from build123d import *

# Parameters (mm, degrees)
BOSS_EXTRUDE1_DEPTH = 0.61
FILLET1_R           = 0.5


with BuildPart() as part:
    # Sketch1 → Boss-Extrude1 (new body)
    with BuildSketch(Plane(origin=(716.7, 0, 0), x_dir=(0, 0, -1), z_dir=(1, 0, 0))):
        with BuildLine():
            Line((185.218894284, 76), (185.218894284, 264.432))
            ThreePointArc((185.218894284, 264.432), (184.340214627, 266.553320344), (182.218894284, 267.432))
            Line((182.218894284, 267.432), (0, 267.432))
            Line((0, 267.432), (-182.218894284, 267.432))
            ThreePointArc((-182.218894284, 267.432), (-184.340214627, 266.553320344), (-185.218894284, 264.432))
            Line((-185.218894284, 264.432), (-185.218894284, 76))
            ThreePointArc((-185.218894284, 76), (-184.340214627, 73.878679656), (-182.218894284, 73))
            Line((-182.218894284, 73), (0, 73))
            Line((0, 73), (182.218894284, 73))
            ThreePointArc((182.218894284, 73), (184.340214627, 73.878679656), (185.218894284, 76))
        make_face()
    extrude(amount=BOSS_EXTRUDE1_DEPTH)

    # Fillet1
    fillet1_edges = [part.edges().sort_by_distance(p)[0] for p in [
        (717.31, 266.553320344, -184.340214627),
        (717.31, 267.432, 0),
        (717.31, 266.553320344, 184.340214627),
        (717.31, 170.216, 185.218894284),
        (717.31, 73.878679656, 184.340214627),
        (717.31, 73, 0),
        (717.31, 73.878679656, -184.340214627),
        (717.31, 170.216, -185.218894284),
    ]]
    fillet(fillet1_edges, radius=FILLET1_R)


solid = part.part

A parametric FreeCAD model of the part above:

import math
import FreeCAD as App
import Part
import Sketcher

V = App.Vector
Q = App.Units.Quantity


def edges_at(feature, points):
    """Names of the edges that pass closest to the given points."""
    edges = feature.Shape.Edges
    near = lambda p: min(range(len(edges)), key=lambda i: edges[i].distToShape(Part.Vertex(*p))[0])
    return sorted({f"Edge{near(p) + 1}" for p in points})

doc = App.newDocument("Part")
body = doc.addObject("PartDesign::Body", "Body")

# Sketch on YZ plane
sketch1 = body.newObject("Sketcher::SketchObject", "Sketch")
sketch1.AttachmentSupport = (doc.getObject("YZ_Plane"), [""])
sketch1.MapMode = "FlatFace"
sketch1.AttachmentOffset = App.Placement(V(0, 0, 716.7), App.Rotation())
sketch1.addGeometry([
    Part.LineSegment(V(76, -185.218894, 0), V(264.432, -185.218894, 0)),  # 0
    Part.ArcOfCircle(Part.Circle(V(264.432, -182.218894, 0), V(0, 0, 1), 3), math.radians(-90), math.radians(0)),  # 1
    Part.LineSegment(V(267.432, -182.218894, 0), V(267.432, 182.218894, 0)),  # 2
    Part.ArcOfCircle(Part.Circle(V(264.432, 182.218894, 0), V(0, 0, 1), 3), math.radians(0), math.radians(90)),  # 3
    Part.LineSegment(V(264.432, 185.218894, 0), V(76, 185.218894, 0)),  # 4
    Part.ArcOfCircle(Part.Circle(V(76, 182.218894, 0), V(0, 0, 1), 3), math.radians(90), math.radians(180)),  # 5
    Part.LineSegment(V(73, 182.218894, 0), V(73, -182.218894, 0)),  # 6
    Part.ArcOfCircle(Part.Circle(V(76, -182.218894, 0), V(0, 0, 1), 3), math.radians(180), math.radians(270)),  # 7
], False)
sketch1.addConstraint([
    Sketcher.Constraint("Tangent", 0, 2, 1, 1),
    Sketcher.Constraint("Tangent", 1, 2, 2, 1),
    Sketcher.Constraint("Tangent", 2, 2, 3, 1),
    Sketcher.Constraint("Tangent", 3, 2, 4, 1),
    Sketcher.Constraint("Tangent", 4, 2, 5, 1),
    Sketcher.Constraint("Tangent", 5, 2, 6, 1),
    Sketcher.Constraint("Tangent", 6, 2, 7, 1),
    Sketcher.Constraint("Tangent", 7, 2, 0, 1),
    Sketcher.Constraint("Horizontal", 0),
    Sketcher.Constraint("Vertical", 2),
    Sketcher.Constraint("Horizontal", 4),
    Sketcher.Constraint("Vertical", 6),
    Sketcher.Constraint("Equal", 1, 3),
    Sketcher.Constraint("Equal", 3, 5),
    Sketcher.Constraint("Equal", 5, 7),
    Sketcher.Constraint("Radius", 1, Q("3 mm")),
    Sketcher.Constraint("DistanceX", -1, 1, 5, 3, Q("76 mm")),
    Sketcher.Constraint("DistanceX", 0, 1, 0, 2, Q("188.432 mm")),
    Sketcher.Constraint("DistanceY", 2, 1, 2, 2, Q("364.437789 mm")),
    Sketcher.Constraint("DistanceY", 1, 3, -1, 1, Q("182.218894 mm")),
])
pad1 = body.newObject("PartDesign::Pad", "Pad")
pad1.Profile = sketch1
pad1.Length = 0.61
doc.recompute()

fillet = body.newObject("PartDesign::Fillet", "Fillet")
fillet.Base = (pad1, edges_at(pad1, [
    (717.31, 266.553, -184.34),
    (717.31, 267.432, 0),
    (717.31, 266.553, 184.34),
    (717.31, 170.216, 185.219),
    (717.31, 73.879, 184.34),
    (717.31, 73, 0),
    (717.31, 73.879, -184.34),
    (717.31, 170.216, -185.219),
]))
fillet.Radius = 0.5

doc.recompute()
